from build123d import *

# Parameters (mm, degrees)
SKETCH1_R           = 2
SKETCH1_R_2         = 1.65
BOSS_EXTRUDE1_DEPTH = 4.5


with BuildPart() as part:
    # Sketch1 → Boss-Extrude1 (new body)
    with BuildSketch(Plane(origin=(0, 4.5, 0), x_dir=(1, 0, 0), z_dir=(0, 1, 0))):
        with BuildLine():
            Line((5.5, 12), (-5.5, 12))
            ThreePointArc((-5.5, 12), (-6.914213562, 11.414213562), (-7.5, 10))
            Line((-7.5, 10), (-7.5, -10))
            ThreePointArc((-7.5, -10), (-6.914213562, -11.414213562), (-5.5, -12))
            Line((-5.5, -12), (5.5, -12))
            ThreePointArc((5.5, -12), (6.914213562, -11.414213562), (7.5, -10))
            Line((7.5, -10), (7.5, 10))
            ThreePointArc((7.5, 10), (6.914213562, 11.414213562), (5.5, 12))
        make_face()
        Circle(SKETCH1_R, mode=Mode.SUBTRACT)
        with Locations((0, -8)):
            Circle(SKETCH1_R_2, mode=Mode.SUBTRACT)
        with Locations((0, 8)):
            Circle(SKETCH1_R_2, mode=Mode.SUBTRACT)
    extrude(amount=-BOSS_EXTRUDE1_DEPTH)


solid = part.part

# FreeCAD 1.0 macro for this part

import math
import FreeCAD as App
import Part
import Sketcher

doc = App.newDocument("Part")
body = doc.addObject("PartDesign::Body", "Body")

sketch1 = doc.addObject("Sketcher::SketchObject", "Sketch")
body.addObject(sketch1)
sketch1.AttachmentSupport = (doc.XZ_Plane, [""])
sketch1.MapMode = "FlatFace"
sketch1.AttachmentOffset = App.Placement(App.Vector(0, 0, -4.5), App.Rotation())
sketch1.addGeometry([
    Part.LineSegment(App.Vector(5.5, -12, 0), App.Vector(-5.5, -12, 0)),
    Part.ArcOfCircle(Part.Circle(App.Vector(-5.5, -10, 0), App.Vector(0, 0, 1), 2), math.radians(-180), math.radians(-90)),
    Part.LineSegment(App.Vector(-7.5, -10, 0), App.Vector(-7.5, 10, 0)),
    Part.ArcOfCircle(Part.Circle(App.Vector(-5.5, 10, 0), App.Vector(0, 0, 1), 2), math.radians(90), math.radians(180)),
    Part.LineSegment(App.Vector(-5.5, 12, 0), App.Vector(5.5, 12, 0)),
    Part.ArcOfCircle(Part.Circle(App.Vector(5.5, 10, 0), App.Vector(0, 0, 1), 2), math.radians(0), math.radians(90)),
    Part.LineSegment(App.Vector(7.5, 10, 0), App.Vector(7.5, -10, 0)),
    Part.ArcOfCircle(Part.Circle(App.Vector(5.5, -10, 0), App.Vector(0, 0, 1), 2), math.radians(-90), math.radians(0)),
    Part.Circle(App.Vector(0, 8, 0), App.Vector(0, 0, 1), 1.65),
    Part.Circle(App.Vector(0, 0, 0), App.Vector(0, 0, 1), 2),
    Part.Circle(App.Vector(0, -8, 0), App.Vector(0, 0, 1), 1.65),
], False)
sketch1.addConstraint([
    Sketcher.Constraint("Tangent", 0, 2, 1, 2),
    Sketcher.Constraint("Tangent", 1, 1, 2, 1),
    Sketcher.Constraint("Tangent", 2, 2, 3, 2),
    Sketcher.Constraint("Tangent", 3, 1, 4, 1),
    Sketcher.Constraint("Tangent", 4, 2, 5, 2),
    Sketcher.Constraint("Tangent", 5, 1, 6, 1),
    Sketcher.Constraint("Tangent", 6, 2, 7, 2),
    Sketcher.Constraint("Tangent", 7, 1, 0, 1),
    Sketcher.Constraint("Horizontal", 0),
    Sketcher.Constraint("Vertical", 2),
    Sketcher.Constraint("Horizontal", 4),
    Sketcher.Constraint("Vertical", 6),
    Sketcher.Constraint("Coincident", 9, 3, -1, 1),
    Sketcher.Constraint("Equal", 1, 3),
    Sketcher.Constraint("Equal", 3, 5),
    Sketcher.Constraint("Equal", 5, 7),
    Sketcher.Constraint("Equal", 7, 9),
    Sketcher.Constraint("Equal", 8, 10),
    Sketcher.Constraint("Symmetric", 1, 3, 5, 3, -1, 1),
    Sketcher.Constraint("Symmetric", 8, 3, 10, 3, -1, 1),
    Sketcher.Constraint("PointOnObject", 8, 3, -2),
    Sketcher.Constraint("Diameter", 9, 4.0),
    Sketcher.Constraint("Diameter", 8, 3.3),
    Sketcher.Constraint("DistanceX", 0, 2, 0, 1, 11.0),
    Sketcher.Constraint("DistanceY", 2, 1, 2, 2, 20.0),
    Sketcher.Constraint("DistanceY", -1, 1, 8, 3, 8.0),
])
pad1 = doc.addObject("PartDesign::Pad", "Pad")
body.addObject(pad1)
pad1.Profile = sketch1
pad1.Length = 4.5

doc.recompute()
